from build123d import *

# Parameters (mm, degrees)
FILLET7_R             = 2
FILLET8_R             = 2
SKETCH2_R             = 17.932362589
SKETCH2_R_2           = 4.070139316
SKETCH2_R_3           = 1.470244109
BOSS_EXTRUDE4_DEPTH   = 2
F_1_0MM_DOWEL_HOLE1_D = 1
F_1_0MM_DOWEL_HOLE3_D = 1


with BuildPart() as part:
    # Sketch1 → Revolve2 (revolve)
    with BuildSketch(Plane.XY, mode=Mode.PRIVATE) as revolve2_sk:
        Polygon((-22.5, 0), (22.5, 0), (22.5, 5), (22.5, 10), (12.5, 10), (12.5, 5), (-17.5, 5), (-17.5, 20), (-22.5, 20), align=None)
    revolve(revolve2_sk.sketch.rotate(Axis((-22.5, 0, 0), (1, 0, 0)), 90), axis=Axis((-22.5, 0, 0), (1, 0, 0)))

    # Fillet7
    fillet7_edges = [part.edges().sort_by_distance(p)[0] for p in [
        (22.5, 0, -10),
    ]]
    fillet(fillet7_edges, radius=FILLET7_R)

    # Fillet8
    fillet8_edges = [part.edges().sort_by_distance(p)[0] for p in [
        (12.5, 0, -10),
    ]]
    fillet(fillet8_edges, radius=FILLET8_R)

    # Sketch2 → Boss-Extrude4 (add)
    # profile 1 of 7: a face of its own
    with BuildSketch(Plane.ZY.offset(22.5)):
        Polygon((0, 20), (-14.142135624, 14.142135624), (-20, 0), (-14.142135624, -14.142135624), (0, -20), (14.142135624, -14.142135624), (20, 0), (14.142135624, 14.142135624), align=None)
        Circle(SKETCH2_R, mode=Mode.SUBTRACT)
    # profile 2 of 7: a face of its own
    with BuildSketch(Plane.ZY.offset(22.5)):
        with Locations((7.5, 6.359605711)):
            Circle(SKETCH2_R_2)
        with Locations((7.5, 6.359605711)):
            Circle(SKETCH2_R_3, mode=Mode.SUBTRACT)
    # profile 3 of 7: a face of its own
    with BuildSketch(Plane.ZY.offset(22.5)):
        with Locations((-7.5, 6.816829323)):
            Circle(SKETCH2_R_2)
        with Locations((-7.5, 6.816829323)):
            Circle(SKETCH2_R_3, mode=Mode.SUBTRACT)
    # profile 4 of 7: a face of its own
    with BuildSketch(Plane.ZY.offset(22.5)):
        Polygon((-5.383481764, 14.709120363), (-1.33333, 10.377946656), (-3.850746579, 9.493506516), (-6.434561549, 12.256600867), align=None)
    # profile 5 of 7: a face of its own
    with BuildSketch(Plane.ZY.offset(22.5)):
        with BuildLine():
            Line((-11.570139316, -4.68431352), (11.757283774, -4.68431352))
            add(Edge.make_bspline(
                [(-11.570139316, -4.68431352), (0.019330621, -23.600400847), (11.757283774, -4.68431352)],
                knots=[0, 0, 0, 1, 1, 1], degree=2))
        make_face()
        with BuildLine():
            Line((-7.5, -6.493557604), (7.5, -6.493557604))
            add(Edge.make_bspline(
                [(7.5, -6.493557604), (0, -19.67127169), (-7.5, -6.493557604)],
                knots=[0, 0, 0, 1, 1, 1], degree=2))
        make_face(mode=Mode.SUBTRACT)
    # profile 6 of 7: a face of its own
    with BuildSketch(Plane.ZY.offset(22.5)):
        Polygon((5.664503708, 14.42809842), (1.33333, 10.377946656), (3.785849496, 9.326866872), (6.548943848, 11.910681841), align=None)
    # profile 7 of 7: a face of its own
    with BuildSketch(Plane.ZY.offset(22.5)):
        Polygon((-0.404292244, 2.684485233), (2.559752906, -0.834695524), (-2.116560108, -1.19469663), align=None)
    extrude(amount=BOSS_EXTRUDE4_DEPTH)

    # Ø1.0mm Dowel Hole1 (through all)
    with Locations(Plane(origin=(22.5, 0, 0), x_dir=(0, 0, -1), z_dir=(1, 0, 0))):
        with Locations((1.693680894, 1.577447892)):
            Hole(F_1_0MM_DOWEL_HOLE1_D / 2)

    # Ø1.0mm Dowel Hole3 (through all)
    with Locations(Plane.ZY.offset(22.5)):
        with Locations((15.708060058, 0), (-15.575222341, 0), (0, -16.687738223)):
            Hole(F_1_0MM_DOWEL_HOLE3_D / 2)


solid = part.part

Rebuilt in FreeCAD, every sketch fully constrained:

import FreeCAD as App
import Part
import Sketcher

V = App.Vector
Q = App.Units.Quantity


def edges_at(feature, points):
    """Names of the edges that pass closest to the given points."""
    edges = feature.Shape.Edges
    near = lambda p: min(range(len(edges)), key=lambda i: edges[i].distToShape(Part.Vertex(*p))[0])
    return sorted({f"Edge{near(p) + 1}" for p in points})

doc = App.newDocument("Part")
body = doc.addObject("PartDesign::Body", "Body")

sketch1 = doc.addObject("Sketcher::SketchObject", "Sketch")
body.addObject(sketch1)
sketch1.AttachmentSupport = (doc.XY_Plane, [""])
sketch1.MapMode = "FlatFace"
sketch1.addGeometry([
    Part.LineSegment(V(-22, 0, 0), V(22, 0, 0)),
    Part.LineSegment(V(22, 0, 0), V(22, 10, 0)),
    Part.LineSegment(V(22, 10, 0), V(12, 10, 0)),
    Part.LineSegment(V(12, 10, 0), V(12, 5, 0)),
    Part.LineSegment(V(12, 5, 0), V(-18, 5, 0)),
    Part.LineSegment(V(-18, 5, 0), V(-18, 20, 0)),
    Part.LineSegment(V(-18, 20, 0), V(-22, 20, 0)),
    Part.LineSegment(V(-22, 20, 0), V(-22, 0, 0)),
], False)
sketch1.addConstraint([
    Sketcher.Constraint("Coincident", 0, 2, 1, 1),
    Sketcher.Constraint("Coincident", 1, 2, 2, 1),
    Sketcher.Constraint("Coincident", 2, 2, 3, 1),
    Sketcher.Constraint("Coincident", 3, 2, 4, 1),
    Sketcher.Constraint("Coincident", 4, 2, 5, 1),
    Sketcher.Constraint("Coincident", 5, 2, 6, 1),
    Sketcher.Constraint("Coincident", 6, 2, 7, 1),
    Sketcher.Constraint("Coincident", 7, 2, 0, 1),
    Sketcher.Constraint("Horizontal", 0),
    Sketcher.Constraint("Vertical", 1),
    Sketcher.Constraint("Horizontal", 2),
    Sketcher.Constraint("Vertical", 3),
    Sketcher.Constraint("Horizontal", 4),
    Sketcher.Constraint("Vertical", 5),
    Sketcher.Constraint("Horizontal", 6),
    Sketcher.Constraint("Vertical", 7),
    Sketcher.Constraint("Symmetric", 0, 2, 7, 2, -1, 1),
    Sketcher.Constraint("Equal", 2, 1),
    Sketcher.Constraint("Equal", 6, 3),
    Sketcher.Constraint("DistanceX", 0, 1, 0, 2, Q("45 mm")),
    Sketcher.Constraint("DistanceX", 2, 2, 2, 1, Q("10 mm")),
    Sketcher.Constraint("DistanceX", 4, 2, 4, 1, Q("30 mm")),
    Sketcher.Constraint("DistanceY", 5, 1, 5, 2, Q("15 mm")),
])
revolution = doc.addObject("PartDesign::Revolution", "Revolution")
body.addObject(revolution)
revolution.Profile = sketch1
revolution.ReferenceAxis = (sketch1, ["H_Axis"])
revolution.Angle = 360
doc.recompute()

fillet = doc.addObject("PartDesign::Fillet", "Fillet")
body.addObject(fillet)
fillet.Base = (revolution, edges_at(revolution, [(22.5, 0, -10)]))
fillet.Radius = 2
doc.recompute()

fillet2 = doc.addObject("PartDesign::Fillet", "Fillet001")
body.addObject(fillet2)
fillet2.Base = (fillet, edges_at(fillet, [(12.5, 0, -10)]))
fillet2.Radius = 2

sketch2 = doc.addObject("Sketcher::SketchObject", "Sketch001")
body.addObject(sketch2)
sketch2.AttachmentSupport = (doc.YZ_Plane, [""])
sketch2.MapMode = "FlatFace"
sketch2.AttachmentOffset = App.Placement(V(0, 0, -22.5), App.Rotation())
sketch2.addGeometry([
    Part.LineSegment(V(20, 0, 0), V(14.142136, -14.142136, 0)),
    Part.LineSegment(V(14.142136, -14.142136, 0), V(0, -20, 0)),
    Part.LineSegment(V(0, -20, 0), V(-14.142136, -14.142136, 0)),
    Part.LineSegment(V(-14.142136, -14.142136, 0), V(-20, 0, 0)),
    Part.LineSegment(V(-20, 0, 0), V(-14.142136, 14.142136, 0)),
    Part.LineSegment(V(-14.142136, 14.142136, 0), V(0, 20, 0)),
    Part.LineSegment(V(0, 20, 0), V(14.142136, 14.142136, 0)),
    Part.LineSegment(V(14.142136, 14.142136, 0), V(20, 0, 0)),
    Part.Circle(V(0, 0, 0), V(0, 0, 1), 17.932363),
    Part.Circle(V(6.359606, 7.5, 0), V(0, 0, 1), 4.070139),
    Part.Circle(V(6.359606, 7.5, 0), V(0, 0, 1), 1.470244),
    Part.Circle(V(6.816829, -7.5, 0), V(0, 0, 1), 4.070139),
    Part.Circle(V(6.816829, -7.5, 0), V(0, 0, 1), 1.470244),
    Part.LineSegment(V(10.377947, -1.33333, 0), V(14.70912, -5.383482, 0)),
    Part.LineSegment(V(14.70912, -5.383482, 0), V(12.256601, -6.434562, 0)),
    Part.LineSegment(V(12.256601, -6.434562, 0), V(9.493507, -3.850747, 0)),
    Part.LineSegment(V(9.493507, -3.850747, 0), V(10.377947, -1.33333, 0)),
    Part.LineSegment(V(-4.684314, 11.757284, 0), V(-4.684314, -11.570139, 0)),
    Part.BSplineCurve([V(-4.684314, -11.570139, 0), V(-23.600401, 0.019331, 0), V(-4.684314, 11.757284, 0)], [3, 3], [0, 1], False, 2, [1, 1, 1], False),
    Part.LineSegment(V(-6.493558, -7.5, 0), V(-6.493558, 7.5, 0)),
    Part.BSplineCurve([V(-6.493558, 7.5, 0), V(-19.671272, 0, 0), V(-6.493558, -7.5, 0)], [3, 3], [0, 1], False, 2, [1, 1, 1], False),
    Part.LineSegment(V(14.428098, 5.664504, 0), V(10.377947, 1.33333, 0)),
    Part.LineSegment(V(10.377947, 1.33333, 0), V(9.326867, 3.785849, 0)),
    Part.LineSegment(V(9.326867, 3.785849, 0), V(11.910682, 6.548944, 0)),
    Part.LineSegment(V(11.910682, 6.548944, 0), V(14.428098, 5.664504, 0)),
    Part.LineSegment(V(-0.834696, 2.559753, 0), V(2.684485, -0.404292, 0)),
    Part.LineSegment(V(2.684485, -0.404292, 0), V(-1.194697, -2.11656, 0)),
    Part.LineSegment(V(-1.194697, -2.11656, 0), V(-0.834696, 2.559753, 0)),
], False)
sketch2.addConstraint([
    Sketcher.Constraint("Block", 18),
    Sketcher.Constraint("Block", 20),
    Sketcher.Constraint("Coincident", 0, 2, 1, 1),
    Sketcher.Constraint("Coincident", 1, 2, 2, 1),
    Sketcher.Constraint("Coincident", 2, 2, 3, 1),
    Sketcher.Constraint("Coincident", 3, 2, 4, 1),
    Sketcher.Constraint("Coincident", 4, 2, 5, 1),
    Sketcher.Constraint("Coincident", 5, 2, 6, 1),
    Sketcher.Constraint("Coincident", 6, 2, 7, 1),
    Sketcher.Constraint("Coincident", 7, 2, 0, 1),
    Sketcher.Constraint("Coincident", 13, 2, 14, 1),
    Sketcher.Constraint("Coincident", 14, 2, 15, 1),
    Sketcher.Constraint("Coincident", 15, 2, 16, 1),
    Sketcher.Constraint("Coincident", 16, 2, 13, 1),
    Sketcher.Constraint("Coincident", 17, 1, 18, 2),
    Sketcher.Constraint("Coincident", 18, 1, 17, 2),
    Sketcher.Constraint("Coincident", 19, 1, 20, 2),
    Sketcher.Constraint("Coincident", 20, 1, 19, 2),
    Sketcher.Constraint("Coincident", 21, 2, 22, 1),
    Sketcher.Constraint("Coincident", 22, 2, 23, 1),
    Sketcher.Constraint("Coincident", 23, 2, 24, 1),
    Sketcher.Constraint("Coincident", 24, 2, 21, 1),
    Sketcher.Constraint("Coincident", 25, 2, 26, 1),
    Sketcher.Constraint("Coincident", 26, 2, 27, 1),
    Sketcher.Constraint("Coincident", 27, 2, 25, 1),
    Sketcher.Constraint("Coincident", 8, 3, -1, 1),
    Sketcher.Constraint("Coincident", 10, 3, 9, 3),
    Sketcher.Constraint("Coincident", 12, 3, 11, 3),
    Sketcher.Constraint("Equal", 9, 11),
    Sketcher.Constraint("Equal", 10, 12),
    Sketcher.Constraint("Symmetric", 0, 2, 4, 2, -1, 1),
    Sketcher.Constraint("Symmetric", 1, 2, 5, 2, -1, 1),
    Sketcher.Constraint("Symmetric", 2, 2, 6, 2, -1, 1),
    Sketcher.Constraint("Symmetric", 3, 2, 7, 2, -1, 1),
    Sketcher.Constraint("Symmetric", 0, 2, 2, 2, -2),
    Sketcher.Constraint("Symmetric", 16, 2, 21, 2, -1),
    Sketcher.Constraint("PointOnObject", 1, 2, -2),
    Sketcher.Constraint("PointOnObject", 3, 2, -1),
    Sketcher.Constraint("Perpendicular", 0, 2),
    Sketcher.Constraint("Parallel", 13, 15),
    Sketcher.Constraint("Perpendicular", 15, 21),
    Sketcher.Constraint("Perpendicular", 14, 22),
    Sketcher.Constraint("Parallel", 21, 23),
    Sketcher.Constraint("Perpendicular", 16, 24),
    Sketcher.Constraint("Horizontal", 12, 3, 19, 1),
    Sketcher.Constraint("Equal", 0, 1),
    Sketcher.Constraint("Equal", 14, 16),
    Sketcher.Constraint("Equal", 13, 21),
    Sketcher.Constraint("Equal", 16, 22),
    Sketcher.Constraint("DistanceY", 1, 2, -1, 1, Q("20 mm")),
    Sketcher.Constraint("Angle", 0, Q("-112.5 deg")),
    Sketcher.Constraint("DistanceY", 11, 3, 9, 3, Q("15 mm")),
    Sketcher.Constraint("Diameter", 9, Q("8.140279 mm")),
    Sketcher.Constraint("Diameter", 10, Q("2.940488 mm")),
    Sketcher.Constraint("DistanceX", 26, 2, 27, 2, Q("0.360001 mm")),
    Sketcher.Constraint("Diameter", 8, Q("35.864725 mm")),
    Sketcher.Constraint("DistanceX", -1, 1, 14, 2, Q("12.256601 mm")),
    Sketcher.Constraint("DistanceX", -1, 1, 24, 2, Q("14.428098 mm")),
    Sketcher.Constraint("DistanceX", 27, 2, 9, 3, Q("7.194301 mm")),
    Sketcher.Constraint("Distance", 14, Q("2.668262 mm")),
    Sketcher.Constraint("Distance", 15, Q("3.782961 mm")),
    Sketcher.Constraint("Distance", 25, Q("4.601108 mm")),
    Sketcher.Constraint("Distance", 27, Q("4.69015 mm")),
    Sketcher.Constraint("DistanceX", -1, 1, 11, 3, Q("6.816829 mm")),
    Sketcher.Constraint("DistanceX", -1, 1, 13, 2, Q("14.70912 mm")),
    Sketcher.Constraint("DistanceY", 13, 2, -1, 1, Q("5.383482 mm")),
    Sketcher.Constraint("DistanceY", 26, 2, -1, 1, Q("2.11656 mm")),
    Sketcher.Constraint("DistanceX", 9, 3, 0, 2, Q("7.78253 mm")),
    Sketcher.Constraint("DistanceX", 25, 2, 15, 2, Q("6.809021 mm")),
])
pad1 = doc.addObject("PartDesign::Pad", "Pad")
body.addObject(pad1)
pad1.Profile = sketch2
pad1.Length = 2
pad1.Reversed = True

sketch3 = doc.addObject("Sketcher::SketchObject", "Sketch002")
body.addObject(sketch3)
sketch3.AttachmentSupport = (doc.YZ_Plane, [""])
sketch3.MapMode = "FlatFace"
sketch3.AttachmentOffset = App.Placement(V(0, 0, 22.5), App.Rotation())
sketch3.addGeometry(Part.Circle(V(1.6, -1.7, 0), V(0, 0, 1), 0.5), False)
sketch3.addConstraint([
    Sketcher.Constraint("Diameter", 0, Q("1 mm")),
    Sketcher.Constraint("DistanceY", 0, 3, -1, 1, Q("1.693681 mm")),
    Sketcher.Constraint("DistanceX", -1, 1, 0, 3, Q("1.577448 mm")),
])
doc.recompute()
hole = doc.addObject("PartDesign::Hole", "Hole")
body.addObject(hole)
hole.Profile = sketch3
hole.ThreadType = "None"
hole.Diameter = 1
hole.DepthType = "ThroughAll"

sketch4 = doc.addObject("Sketcher::SketchObject", "Sketch003")
body.addObject(sketch4)
sketch4.AttachmentSupport = (doc.YZ_Plane, [""])
sketch4.MapMode = "FlatFace"
sketch4.AttachmentOffset = App.Placement(V(0, 0, -22.5), App.Rotation())
sketch4.addGeometry([
    Part.Circle(V(0, 15.7, 0), V(0, 0, 1), 0.5),
    Part.Circle(V(0, -15.6, 0), V(0, 0, 1), 0.5),
    Part.Circle(V(-16.7, 0, 0), V(0, 0, 1), 0.5),
], False)
sketch4.addConstraint([
    Sketcher.Constraint("Equal", 0, 1),
    Sketcher.Constraint("Equal", 1, 2),
    Sketcher.Constraint("PointOnObject", 0, 3, -2),
    Sketcher.Constraint("PointOnObject", 1, 3, -2),
    Sketcher.Constraint("PointOnObject", 2, 3, -1),
    Sketcher.Constraint("Diameter", 0, Q("1 mm")),
    Sketcher.Constraint("DistanceY", -1, 1, 0, 3, Q("15.70806 mm")),
    Sketcher.Constraint("DistanceX", 2, 3, -1, 1, Q("16.687738 mm")),
    Sketcher.Constraint("DistanceY", 1, 3, -1, 1, Q("15.575222 mm")),
])
doc.recompute()
hole2 = doc.addObject("PartDesign::Hole", "Hole001")
body.addObject(hole2)
hole2.Profile = sketch4
hole2.ThreadType = "None"
hole2.Diameter = 1
hole2.DepthType = "ThroughAll"
hole2.Reversed = True

doc.recompute()
